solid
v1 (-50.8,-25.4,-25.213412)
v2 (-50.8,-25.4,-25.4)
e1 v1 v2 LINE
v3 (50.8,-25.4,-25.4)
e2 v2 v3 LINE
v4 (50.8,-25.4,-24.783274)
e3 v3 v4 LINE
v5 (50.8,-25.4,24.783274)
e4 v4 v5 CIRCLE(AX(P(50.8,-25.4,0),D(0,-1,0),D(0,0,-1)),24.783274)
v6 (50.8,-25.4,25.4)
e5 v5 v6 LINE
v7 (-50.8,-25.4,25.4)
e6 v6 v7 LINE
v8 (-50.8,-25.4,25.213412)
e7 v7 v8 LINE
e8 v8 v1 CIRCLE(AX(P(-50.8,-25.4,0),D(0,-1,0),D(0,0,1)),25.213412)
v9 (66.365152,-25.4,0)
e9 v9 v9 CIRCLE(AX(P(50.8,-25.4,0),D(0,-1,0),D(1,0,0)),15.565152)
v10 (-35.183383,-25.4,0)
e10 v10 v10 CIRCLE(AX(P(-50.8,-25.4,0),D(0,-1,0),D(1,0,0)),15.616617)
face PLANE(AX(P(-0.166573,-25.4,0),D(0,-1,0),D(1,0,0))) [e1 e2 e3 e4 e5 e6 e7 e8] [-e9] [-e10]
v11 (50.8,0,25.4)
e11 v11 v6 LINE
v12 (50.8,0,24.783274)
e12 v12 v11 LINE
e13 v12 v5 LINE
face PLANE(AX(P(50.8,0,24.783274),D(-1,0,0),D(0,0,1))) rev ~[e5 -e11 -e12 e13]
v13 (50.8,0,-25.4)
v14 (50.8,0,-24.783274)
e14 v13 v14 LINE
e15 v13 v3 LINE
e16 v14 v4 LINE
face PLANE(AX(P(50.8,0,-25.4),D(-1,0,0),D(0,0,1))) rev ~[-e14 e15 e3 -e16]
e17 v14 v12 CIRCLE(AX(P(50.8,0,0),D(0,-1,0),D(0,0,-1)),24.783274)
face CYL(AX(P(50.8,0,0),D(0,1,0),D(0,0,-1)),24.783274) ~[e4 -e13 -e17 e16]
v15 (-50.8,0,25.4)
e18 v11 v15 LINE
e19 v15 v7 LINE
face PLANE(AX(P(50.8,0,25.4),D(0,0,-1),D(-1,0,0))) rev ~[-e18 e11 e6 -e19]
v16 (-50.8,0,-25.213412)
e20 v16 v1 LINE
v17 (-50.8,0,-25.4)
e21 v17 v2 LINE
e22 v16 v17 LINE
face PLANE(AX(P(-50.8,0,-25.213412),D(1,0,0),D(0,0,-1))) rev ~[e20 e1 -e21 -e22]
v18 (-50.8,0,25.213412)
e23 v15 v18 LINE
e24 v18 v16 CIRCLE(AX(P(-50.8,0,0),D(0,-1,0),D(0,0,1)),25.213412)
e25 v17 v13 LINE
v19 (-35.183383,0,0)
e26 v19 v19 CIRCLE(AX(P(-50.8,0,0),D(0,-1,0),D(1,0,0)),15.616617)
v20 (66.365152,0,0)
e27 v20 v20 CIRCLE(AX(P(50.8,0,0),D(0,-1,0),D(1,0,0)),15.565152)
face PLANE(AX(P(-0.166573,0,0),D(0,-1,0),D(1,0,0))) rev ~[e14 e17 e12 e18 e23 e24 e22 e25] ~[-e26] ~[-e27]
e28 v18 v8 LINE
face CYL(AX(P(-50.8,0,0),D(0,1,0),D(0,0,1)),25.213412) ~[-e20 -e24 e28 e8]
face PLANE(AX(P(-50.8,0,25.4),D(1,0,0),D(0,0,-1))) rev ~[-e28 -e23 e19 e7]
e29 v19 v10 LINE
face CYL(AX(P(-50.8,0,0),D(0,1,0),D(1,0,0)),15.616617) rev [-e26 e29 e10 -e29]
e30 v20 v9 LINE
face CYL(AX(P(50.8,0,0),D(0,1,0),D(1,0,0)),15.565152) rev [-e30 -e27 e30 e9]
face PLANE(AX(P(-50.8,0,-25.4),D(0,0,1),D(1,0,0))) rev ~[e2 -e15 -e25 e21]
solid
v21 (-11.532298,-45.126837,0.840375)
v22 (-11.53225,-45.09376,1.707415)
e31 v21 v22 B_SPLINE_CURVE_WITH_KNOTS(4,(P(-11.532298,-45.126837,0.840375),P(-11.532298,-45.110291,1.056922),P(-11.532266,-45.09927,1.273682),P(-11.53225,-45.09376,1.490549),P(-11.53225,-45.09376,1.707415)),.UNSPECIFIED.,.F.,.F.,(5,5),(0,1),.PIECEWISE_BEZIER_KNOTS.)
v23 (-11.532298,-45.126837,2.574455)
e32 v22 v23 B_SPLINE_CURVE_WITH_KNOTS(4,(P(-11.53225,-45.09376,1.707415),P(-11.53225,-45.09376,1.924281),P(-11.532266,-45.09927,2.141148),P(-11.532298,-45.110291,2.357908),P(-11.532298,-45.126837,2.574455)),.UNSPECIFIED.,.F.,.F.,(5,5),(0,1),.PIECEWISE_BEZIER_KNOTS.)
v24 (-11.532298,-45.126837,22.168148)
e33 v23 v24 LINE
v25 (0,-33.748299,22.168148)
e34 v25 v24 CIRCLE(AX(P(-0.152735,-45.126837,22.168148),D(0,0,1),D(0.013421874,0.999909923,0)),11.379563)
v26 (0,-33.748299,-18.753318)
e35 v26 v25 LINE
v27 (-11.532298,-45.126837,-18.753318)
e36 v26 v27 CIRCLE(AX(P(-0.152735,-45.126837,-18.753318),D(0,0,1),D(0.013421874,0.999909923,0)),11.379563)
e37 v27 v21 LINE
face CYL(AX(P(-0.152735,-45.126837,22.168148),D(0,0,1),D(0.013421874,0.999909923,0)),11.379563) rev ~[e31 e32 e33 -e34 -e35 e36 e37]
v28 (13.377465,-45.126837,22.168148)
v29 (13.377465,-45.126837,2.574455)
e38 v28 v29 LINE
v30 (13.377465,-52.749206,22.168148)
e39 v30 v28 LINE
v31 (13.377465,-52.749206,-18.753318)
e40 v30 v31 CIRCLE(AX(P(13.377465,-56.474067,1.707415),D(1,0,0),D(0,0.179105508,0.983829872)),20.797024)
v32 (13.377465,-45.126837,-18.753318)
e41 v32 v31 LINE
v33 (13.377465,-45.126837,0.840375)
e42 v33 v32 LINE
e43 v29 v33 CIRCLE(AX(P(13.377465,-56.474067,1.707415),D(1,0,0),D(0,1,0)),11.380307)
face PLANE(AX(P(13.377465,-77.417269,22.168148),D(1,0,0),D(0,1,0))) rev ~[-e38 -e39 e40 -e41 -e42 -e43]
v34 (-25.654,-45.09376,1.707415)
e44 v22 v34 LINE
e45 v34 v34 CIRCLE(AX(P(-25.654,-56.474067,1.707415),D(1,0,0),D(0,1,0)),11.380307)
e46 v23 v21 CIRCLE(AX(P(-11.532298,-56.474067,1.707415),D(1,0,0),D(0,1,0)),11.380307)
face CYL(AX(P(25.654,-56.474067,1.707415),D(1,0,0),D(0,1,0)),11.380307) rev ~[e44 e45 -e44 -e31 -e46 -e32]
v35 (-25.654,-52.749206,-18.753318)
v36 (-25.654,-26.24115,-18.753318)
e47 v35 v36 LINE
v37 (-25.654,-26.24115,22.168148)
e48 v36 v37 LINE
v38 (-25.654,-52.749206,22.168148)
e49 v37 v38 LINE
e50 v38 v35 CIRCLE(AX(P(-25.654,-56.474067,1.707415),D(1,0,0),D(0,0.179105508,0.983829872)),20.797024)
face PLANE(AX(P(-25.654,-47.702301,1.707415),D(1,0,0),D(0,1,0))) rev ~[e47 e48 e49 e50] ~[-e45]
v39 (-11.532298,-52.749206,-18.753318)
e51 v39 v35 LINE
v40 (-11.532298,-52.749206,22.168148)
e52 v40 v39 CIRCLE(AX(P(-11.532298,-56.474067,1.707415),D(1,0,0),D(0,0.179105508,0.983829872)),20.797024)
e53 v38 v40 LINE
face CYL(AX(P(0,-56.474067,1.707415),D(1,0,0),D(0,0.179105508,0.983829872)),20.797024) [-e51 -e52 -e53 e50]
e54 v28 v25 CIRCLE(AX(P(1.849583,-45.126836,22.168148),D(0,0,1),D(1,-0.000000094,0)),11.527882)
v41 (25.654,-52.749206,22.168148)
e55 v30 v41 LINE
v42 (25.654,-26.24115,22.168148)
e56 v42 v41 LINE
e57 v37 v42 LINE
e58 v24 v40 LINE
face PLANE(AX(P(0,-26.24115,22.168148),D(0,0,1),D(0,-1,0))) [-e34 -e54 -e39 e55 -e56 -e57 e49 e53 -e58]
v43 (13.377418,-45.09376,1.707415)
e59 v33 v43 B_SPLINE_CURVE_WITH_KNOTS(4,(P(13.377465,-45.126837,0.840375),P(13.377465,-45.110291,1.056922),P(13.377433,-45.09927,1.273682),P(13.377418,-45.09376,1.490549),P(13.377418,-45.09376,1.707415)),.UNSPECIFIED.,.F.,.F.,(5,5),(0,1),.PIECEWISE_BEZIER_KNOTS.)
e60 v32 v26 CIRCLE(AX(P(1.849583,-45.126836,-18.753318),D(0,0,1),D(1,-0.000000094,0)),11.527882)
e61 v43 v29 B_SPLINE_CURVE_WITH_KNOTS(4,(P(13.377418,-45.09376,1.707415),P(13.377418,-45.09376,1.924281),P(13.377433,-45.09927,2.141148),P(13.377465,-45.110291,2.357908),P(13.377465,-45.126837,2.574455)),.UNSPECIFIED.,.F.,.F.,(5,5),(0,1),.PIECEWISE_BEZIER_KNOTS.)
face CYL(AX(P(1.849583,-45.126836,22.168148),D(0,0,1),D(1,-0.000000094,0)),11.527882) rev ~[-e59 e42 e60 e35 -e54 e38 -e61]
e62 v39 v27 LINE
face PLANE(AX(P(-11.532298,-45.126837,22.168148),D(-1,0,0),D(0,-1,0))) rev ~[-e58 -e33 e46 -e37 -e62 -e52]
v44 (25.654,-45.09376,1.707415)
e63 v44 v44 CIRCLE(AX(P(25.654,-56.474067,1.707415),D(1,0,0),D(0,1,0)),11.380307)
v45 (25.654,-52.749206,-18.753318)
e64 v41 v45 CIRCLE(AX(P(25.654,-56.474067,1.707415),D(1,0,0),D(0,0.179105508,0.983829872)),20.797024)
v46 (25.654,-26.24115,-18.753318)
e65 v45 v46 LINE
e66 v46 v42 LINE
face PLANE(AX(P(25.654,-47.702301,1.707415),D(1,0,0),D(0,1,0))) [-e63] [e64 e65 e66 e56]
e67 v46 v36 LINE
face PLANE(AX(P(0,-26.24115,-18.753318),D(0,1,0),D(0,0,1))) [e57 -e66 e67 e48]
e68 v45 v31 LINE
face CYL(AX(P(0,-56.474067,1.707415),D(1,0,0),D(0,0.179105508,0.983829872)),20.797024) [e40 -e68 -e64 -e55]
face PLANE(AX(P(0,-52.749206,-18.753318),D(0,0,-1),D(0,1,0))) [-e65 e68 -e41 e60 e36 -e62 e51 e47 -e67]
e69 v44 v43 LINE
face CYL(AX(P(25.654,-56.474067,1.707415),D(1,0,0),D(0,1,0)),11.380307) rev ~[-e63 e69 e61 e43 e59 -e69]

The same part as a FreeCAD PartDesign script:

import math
import FreeCAD as App
import Part
import Sketcher
from FreeCAD import Vector
Q = App.Units.Quantity

doc = App.newDocument("Part")
body = doc.addObject("PartDesign::Body", "Body")

sketch1 = body.newObject("Sketcher::SketchObject", "Sketch")
sketch1.AttachmentSupport = (doc.getObject("XZ_Plane"), [""])
sketch1.MapMode = "FlatFace"
sketch1.addGeometry([
    Part.LineSegment(Vector(-50.8, -25.4, 0), Vector(50.8, -25.4, 0)),
    Part.LineSegment(Vector(50.8, -25.4, 0), Vector(50.8, -24.78, 0)),
    Part.ArcOfCircle(Part.Circle(Vector(50.8, 0, 0), Vector(0, 0, 1), 24.78), math.radians(-90), math.radians(90)),
    Part.LineSegment(Vector(50.8, 24.78, 0), Vector(50.8, 25.4, 0)),
    Part.LineSegment(Vector(50.8, 25.4, 0), Vector(-50.8, 25.4, 0)),
    Part.LineSegment(Vector(-50.8, 25.4, 0), Vector(-50.8, 25.21, 0)),
    Part.ArcOfCircle(Part.Circle(Vector(-50.8, 0, 0), Vector(0, 0, 1), 25.21), math.radians(90), math.radians(270)),
    Part.LineSegment(Vector(-50.8, -25.21, 0), Vector(-50.8, -25.4, 0)),
    Part.Circle(Vector(-50.8, 0, 0), Vector(0, 0, 1), 15.62),
    Part.Circle(Vector(50.8, 0, 0), Vector(0, 0, 1), 15.57),
], False)
sketch1.addConstraint([
    Sketcher.Constraint("Coincident", 0, 2, 1, 1),
    Sketcher.Constraint("Coincident", 1, 2, 2, 1),
    Sketcher.Constraint("Coincident", 2, 2, 3, 1),
    Sketcher.Constraint("Coincident", 3, 2, 4, 1),
    Sketcher.Constraint("Coincident", 4, 2, 5, 1),
    Sketcher.Constraint("Coincident", 5, 2, 6, 1),
    Sketcher.Constraint("Coincident", 6, 2, 7, 1),
    Sketcher.Constraint("Coincident", 7, 2, 0, 1),
    Sketcher.Constraint("Horizontal", 0),
    Sketcher.Constraint("Vertical", 1),
    Sketcher.Constraint("Vertical", 3),
    Sketcher.Constraint("Horizontal", 4),
    Sketcher.Constraint("Vertical", 5),
    Sketcher.Constraint("Vertical", 7),
    Sketcher.Constraint("Coincident", 8, 3, 6, 3),
    Sketcher.Constraint("Coincident", 9, 3, 2, 3),
    Sketcher.Constraint("Symmetric", 2, 3, 6, 3, -1, 1),
    Sketcher.Constraint("Symmetric", 0, 2, 4, 2, -1, 1),
    Sketcher.Constraint("Symmetric", 1, 2, 2, 2, -1),
    Sketcher.Constraint("Vertical", 9, 3, 0, 2),
    Sketcher.Constraint("Vertical", 5, 2, 6, 2),
    Sketcher.Constraint("DistanceX", 0, 1, 0, 2, Q("4 in")),
    Sketcher.Constraint("DistanceY", 0, 2, -1, 1, Q("1 in")),
    Sketcher.Constraint("Diameter", 8, 31.233234),
    Sketcher.Constraint("Diameter", 9, 31.130304),
    Sketcher.Constraint("Radius", 2, 24.783274),
    Sketcher.Constraint("Radius", 6, 25.213412),
])
pad1 = body.newObject("PartDesign::Pad", "Pad")
pad1.Profile = sketch1
pad1.Length = Q("1 in")
body2 = doc.addObject("PartDesign::Body", "Body001")

sketch2 = body2.newObject("Sketcher::SketchObject", "Sketch001")
sketch2.AttachmentSupport = (doc.getObject("YZ_Plane001"), [""])
sketch2.MapMode = "FlatFace"
sketch2.addGeometry([
    Part.LineSegment(Vector(-26, -19, 0), Vector(-26, 22, 0)),
    Part.LineSegment(Vector(-26, 22, 0), Vector(-53, 22, 0)),
    Part.ArcOfCircle(Part.Circle(Vector(-56, 2, 0), Vector(0, 0, 1), 21), math.radians(80), math.radians(280)),
    Part.LineSegment(Vector(-53, -19, 0), Vector(-26, -19, 0)),
], False)
sketch2.addConstraint([
    Sketcher.Constraint("Coincident", 0, 2, 1, 1),
    Sketcher.Constraint("Coincident", 1, 2, 2, 1),
    Sketcher.Constraint("Coincident", 2, 2, 3, 1),
    Sketcher.Constraint("Coincident", 3, 2, 0, 1),
    Sketcher.Constraint("Vertical", 0),
    Sketcher.Constraint("Horizontal", 1),
    Sketcher.Constraint("Horizontal", 3),
    Sketcher.Constraint("Vertical", 1, 2, 2, 2),
    Sketcher.Constraint("Radius", 2, 20.797024),
    Sketcher.Constraint("DistanceX", 1, 2, 1, 1, 26.508056),
    Sketcher.Constraint("DistanceY", 0, 1, 0, 2, 40.921466),
    Sketcher.Constraint("DistanceX", 0, 2, -1, 1, 26.24115),
    Sketcher.Constraint("DistanceY", 3, 2, -1, 1, 18.753318),
])
pad2 = body2.newObject("PartDesign::Pad", "Pad001")
pad2.Profile = sketch2
pad2.Length = Q("2.02 in")
pad2.Midplane = True

sketch3 = body2.newObject("Sketcher::SketchObject", "Sketch002")
sketch3.AttachmentSupport = (doc.getObject("XY_Plane001"), [""])
sketch3.MapMode = "FlatFace"
sketch3.AttachmentOffset = App.Placement(Vector(0, 0, 22.168148), App.Rotation())
sketch3.addGeometry([
    Part.ArcOfCircle(Part.Circle(Vector(2, -45, 0), Vector(0, 0, 1), 12), math.radians(0), math.radians(99)),
    Part.ArcOfCircle(Part.Circle(Vector(0, -45, 0), Vector(0, 0, 1), 11), math.radians(89), math.radians(180)),
    Part.LineSegment(Vector(-12, -45, 0), Vector(-12, -78, 0)),
    Part.LineSegment(Vector(-12, -78, 0), Vector(13, -77, 0)),
    Part.LineSegment(Vector(13, -77, 0), Vector(13, -45, 0)),
], False)
sketch3.addConstraint([
    Sketcher.Constraint("Coincident", 0, 2, 1, 1),
    Sketcher.Constraint("Tangent", 1, 2, 2, 1),
    Sketcher.Constraint("Coincident", 2, 2, 3, 1),
    Sketcher.Constraint("Coincident", 3, 2, 4, 1),
    Sketcher.Constraint("Tangent", 4, 2, 0, 1),
    Sketcher.Constraint("Vertical", 2),
    Sketcher.Constraint("Vertical", 4),
    Sketcher.Constraint("PointOnObject", 0, 2, -2),
    Sketcher.Constraint("Horizontal", 0, 3, 1, 3),
    Sketcher.Constraint("Radius", 0, 11.527882),
    Sketcher.Constraint("Radius", 1, 11.379563),
    Sketcher.Constraint("DistanceY", 0, 2, -1, 1, 33.748299),
    Sketcher.Constraint("DistanceX", 2, 2, -1, 1, 11.532298),
    Sketcher.Constraint("DistanceY", 2, 2, 2, 1, 33.213015),
    Sketcher.Constraint("DistanceY", 4, 1, 4, 2, 32.290432),
])
pocket1 = body2.newObject("PartDesign::Pocket", "Pocket")
pocket1.Profile = sketch3
pocket1.Length = Q("4.28 in")
pocket1.Midplane = True

sketch4 = body2.newObject("Sketcher::SketchObject", "Sketch003")
sketch4.AttachmentSupport = (doc.getObject("YZ_Plane001"), [""])
sketch4.MapMode = "FlatFace"
sketch4.AttachmentOffset = App.Placement(Vector(0, 0, 1.01 * 25.4), App.Rotation())
sketch4.addGeometry(Part.Circle(Vector(-56, 2, 0), Vector(0, 0, 1), 11), False)
sketch4.addConstraint([
    Sketcher.Constraint("Diameter", 0, 22.760614),
    Sketcher.Constraint("DistanceX", 0, 3, -1, 1, 56.474067),
    Sketcher.Constraint("DistanceY", -1, 1, 0, 3, 1.707415),
])
pocket2 = body2.newObject("PartDesign::Pocket", "Pocket001")
pocket2.Profile = sketch4
pocket2.Length = Q("3.71 in")

doc.recompute()
